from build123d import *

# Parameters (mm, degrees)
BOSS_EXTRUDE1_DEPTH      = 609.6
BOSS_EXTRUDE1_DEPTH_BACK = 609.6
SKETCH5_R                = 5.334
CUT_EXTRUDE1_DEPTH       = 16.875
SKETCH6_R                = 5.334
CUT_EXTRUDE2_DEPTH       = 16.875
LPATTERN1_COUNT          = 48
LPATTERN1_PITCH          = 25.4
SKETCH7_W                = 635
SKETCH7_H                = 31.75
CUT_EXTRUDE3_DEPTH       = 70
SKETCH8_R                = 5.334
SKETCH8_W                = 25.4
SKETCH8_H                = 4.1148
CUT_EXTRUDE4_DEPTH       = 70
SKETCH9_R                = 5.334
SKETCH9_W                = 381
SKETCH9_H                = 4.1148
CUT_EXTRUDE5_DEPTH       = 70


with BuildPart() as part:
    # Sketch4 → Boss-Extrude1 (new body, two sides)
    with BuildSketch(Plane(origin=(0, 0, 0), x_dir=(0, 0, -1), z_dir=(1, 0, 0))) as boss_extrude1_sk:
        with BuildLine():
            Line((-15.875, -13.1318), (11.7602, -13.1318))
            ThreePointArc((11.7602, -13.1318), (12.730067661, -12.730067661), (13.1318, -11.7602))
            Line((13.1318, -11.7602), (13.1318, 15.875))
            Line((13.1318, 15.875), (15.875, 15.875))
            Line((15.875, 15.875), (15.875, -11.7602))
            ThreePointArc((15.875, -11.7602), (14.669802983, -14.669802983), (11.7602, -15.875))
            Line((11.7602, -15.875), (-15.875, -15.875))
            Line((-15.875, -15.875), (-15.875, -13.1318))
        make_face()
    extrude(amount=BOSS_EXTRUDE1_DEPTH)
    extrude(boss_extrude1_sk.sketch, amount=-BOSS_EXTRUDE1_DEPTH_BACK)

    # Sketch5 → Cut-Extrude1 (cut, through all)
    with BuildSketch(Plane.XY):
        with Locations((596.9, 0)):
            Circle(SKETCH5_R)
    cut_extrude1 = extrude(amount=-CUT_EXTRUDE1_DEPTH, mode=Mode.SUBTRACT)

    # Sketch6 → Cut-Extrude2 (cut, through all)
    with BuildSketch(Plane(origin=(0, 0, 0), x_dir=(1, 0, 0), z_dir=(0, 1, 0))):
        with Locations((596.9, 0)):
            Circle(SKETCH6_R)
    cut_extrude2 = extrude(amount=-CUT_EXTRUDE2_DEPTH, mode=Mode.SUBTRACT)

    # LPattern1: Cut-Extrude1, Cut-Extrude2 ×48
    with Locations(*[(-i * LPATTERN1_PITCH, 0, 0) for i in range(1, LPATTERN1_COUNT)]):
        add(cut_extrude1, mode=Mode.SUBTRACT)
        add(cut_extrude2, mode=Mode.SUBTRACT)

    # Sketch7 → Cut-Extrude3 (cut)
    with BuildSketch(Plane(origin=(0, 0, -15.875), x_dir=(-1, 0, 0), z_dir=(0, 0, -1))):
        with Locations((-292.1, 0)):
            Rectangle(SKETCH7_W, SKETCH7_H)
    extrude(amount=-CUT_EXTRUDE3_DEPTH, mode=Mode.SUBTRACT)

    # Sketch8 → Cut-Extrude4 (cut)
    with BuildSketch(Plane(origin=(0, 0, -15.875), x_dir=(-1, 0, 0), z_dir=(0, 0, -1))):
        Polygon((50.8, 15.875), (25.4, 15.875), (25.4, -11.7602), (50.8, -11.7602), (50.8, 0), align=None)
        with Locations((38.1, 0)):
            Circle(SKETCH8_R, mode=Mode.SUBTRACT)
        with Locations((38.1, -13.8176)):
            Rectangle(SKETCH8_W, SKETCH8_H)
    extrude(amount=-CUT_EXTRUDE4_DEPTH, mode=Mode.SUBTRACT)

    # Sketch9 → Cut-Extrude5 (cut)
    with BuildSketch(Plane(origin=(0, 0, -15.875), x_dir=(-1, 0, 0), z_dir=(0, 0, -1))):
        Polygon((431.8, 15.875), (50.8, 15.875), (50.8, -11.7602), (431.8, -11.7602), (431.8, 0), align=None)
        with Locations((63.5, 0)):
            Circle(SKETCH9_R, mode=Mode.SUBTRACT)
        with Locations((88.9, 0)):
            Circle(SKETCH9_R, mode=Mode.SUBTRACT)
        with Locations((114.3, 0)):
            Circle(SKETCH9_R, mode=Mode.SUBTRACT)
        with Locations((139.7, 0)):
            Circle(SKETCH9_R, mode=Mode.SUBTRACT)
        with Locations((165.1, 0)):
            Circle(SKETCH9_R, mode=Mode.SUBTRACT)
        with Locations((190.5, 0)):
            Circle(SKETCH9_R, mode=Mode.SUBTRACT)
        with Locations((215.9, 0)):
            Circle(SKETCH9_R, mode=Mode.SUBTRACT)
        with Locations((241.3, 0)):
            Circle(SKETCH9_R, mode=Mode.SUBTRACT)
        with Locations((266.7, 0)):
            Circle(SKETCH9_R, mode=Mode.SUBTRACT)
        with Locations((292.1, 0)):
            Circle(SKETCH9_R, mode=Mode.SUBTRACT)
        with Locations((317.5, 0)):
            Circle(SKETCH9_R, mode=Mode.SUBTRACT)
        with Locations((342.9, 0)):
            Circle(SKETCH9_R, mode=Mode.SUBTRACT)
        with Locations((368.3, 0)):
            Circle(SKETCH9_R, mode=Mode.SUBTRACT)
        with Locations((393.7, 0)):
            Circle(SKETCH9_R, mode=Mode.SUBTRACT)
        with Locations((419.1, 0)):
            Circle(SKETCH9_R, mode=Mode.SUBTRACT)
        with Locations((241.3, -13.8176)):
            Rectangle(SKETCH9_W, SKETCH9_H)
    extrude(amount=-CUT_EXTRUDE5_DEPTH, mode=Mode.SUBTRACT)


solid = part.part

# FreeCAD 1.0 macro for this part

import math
import FreeCAD as App
import Part
import Sketcher
Q = App.Units.Quantity

doc = App.newDocument("Part")
body = doc.addObject("PartDesign::Body", "Body")

# Sketch on YZ plane
sketch1 = body.newObject("Sketcher::SketchObject", "Sketch")
sketch1.AttachmentSupport = (doc.getObject("YZ_Plane"), [""])
sketch1.MapMode = "FlatFace"
sketch1.addGeometry([
    Part.LineSegment(App.Vector(-13.1318, -11.7602, 0), App.Vector(-13.1318, 15.875, 0)),  # 0
    Part.LineSegment(App.Vector(-13.1318, 15.875, 0), App.Vector(-15.875, 15.875, 0)),  # 1
    Part.LineSegment(App.Vector(-15.875, 15.875, 0), App.Vector(-15.875, -11.7602, 0)),  # 2
    Part.ArcOfCircle(Part.Circle(App.Vector(-11.7602, -11.7602, 0), App.Vector(0, 0, 1), 4.1148), math.radians(-180), math.radians(-90)),  # 3
    Part.LineSegment(App.Vector(-11.7602, -15.875, 0), App.Vector(15.875, -15.875, 0)),  # 4
    Part.LineSegment(App.Vector(15.875, -15.875, 0), App.Vector(15.875, -13.1318, 0)),  # 5
    Part.LineSegment(App.Vector(15.875, -13.1318, 0), App.Vector(-11.7602, -13.1318, 0)),  # 6
    Part.ArcOfCircle(Part.Circle(App.Vector(-11.7602, -11.7602, 0), App.Vector(0, 0, 1), 1.3716), math.radians(180), math.radians(270)),  # 7
], False)
sketch1.addConstraint([
    Sketcher.Constraint("Coincident", 0, 2, 1, 1),
    Sketcher.Constraint("Coincident", 1, 2, 2, 1),
    Sketcher.Constraint("Tangent", 2, 2, 3, 1),
    Sketcher.Constraint("Tangent", 3, 2, 4, 1),
    Sketcher.Constraint("Coincident", 4, 2, 5, 1),
    Sketcher.Constraint("Coincident", 5, 2, 6, 1),
    Sketcher.Constraint("Tangent", 6, 2, 7, 2),
    Sketcher.Constraint("Tangent", 7, 1, 0, 1),
    Sketcher.Constraint("Vertical", 0),
    Sketcher.Constraint("Horizontal", 1),
    Sketcher.Constraint("Vertical", 2),
    Sketcher.Constraint("Horizontal", 4),
    Sketcher.Constraint("Vertical", 5),
    Sketcher.Constraint("Horizontal", 6),
    Sketcher.Constraint("Coincident", 7, 3, 3, 3),
    Sketcher.Constraint("Symmetric", 1, 2, 4, 2, -1, 1),
    Sketcher.Constraint("Equal", 6, 0),
    Sketcher.Constraint("Radius", 3, Q("0.162 in")),
    Sketcher.Constraint("Radius", 7, Q("0.054 in")),
    Sketcher.Constraint("DistanceX", 4, 1, 4, 2, Q("1.088 in")),
])
pad1 = body.newObject("PartDesign::Pad", "Pad")
pad1.Profile = sketch1
pad1.Type = "TwoLengths"
pad1.Length = Q("24 in")
pad1.Length2 = Q("24 in")

# Sketch on XY plane
sketch2 = body.newObject("Sketcher::SketchObject", "Sketch001")
sketch2.AttachmentSupport = (doc.getObject("XY_Plane"), [""])
sketch2.MapMode = "FlatFace"
sketch2.addGeometry(Part.Circle(App.Vector(596.9, 0, 0), App.Vector(0, 0, 1), 5.334), False)
sketch2.addConstraint([
    Sketcher.Constraint("PointOnObject", 0, 3, -1),
    Sketcher.Constraint("Diameter", 0, Q("0.42 in")),
    Sketcher.Constraint("DistanceX", -1, 1, 0, 3, Q("23.5 in")),
])
pocket1 = body.newObject("PartDesign::Pocket", "Pocket")
pocket1.Profile = sketch2
pocket1.Type = "ThroughAll"

# Sketch on XZ plane
sketch3 = body.newObject("Sketcher::SketchObject", "Sketch002")
sketch3.AttachmentSupport = (doc.getObject("XZ_Plane"), [""])
sketch3.MapMode = "FlatFace"
sketch3.addGeometry(Part.Circle(App.Vector(596.9, 0, 0), App.Vector(0, 0, 1), 5.334), False)
sketch3.addConstraint([
    Sketcher.Constraint("PointOnObject", 0, 3, -1),
    Sketcher.Constraint("Diameter", 0, Q("0.42 in")),
    Sketcher.Constraint("DistanceX", -1, 1, 0, 3, Q("23.5 in")),
])
pocket2 = body.newObject("PartDesign::Pocket", "Pocket001")
pocket2.Profile = sketch3
pocket2.Type = "ThroughAll"
pocket2.Reversed = True
doc.recompute()

linearpattern = body.newObject("PartDesign::LinearPattern", "LinearPattern")
linearpattern.Originals = [pocket1, pocket2]
linearpattern.Direction = (doc.getObject("X_Axis"), [""])
linearpattern.Mode = "offset"
linearpattern.Offset = Q("1 in")
linearpattern.Occurrences = 48
linearpattern.Reversed = True
body.Tip = linearpattern

# Sketch on XY plane
sketch4 = body.newObject("Sketcher::SketchObject", "Sketch003")
sketch4.AttachmentSupport = (doc.getObject("XY_Plane"), [""])
sketch4.MapMode = "FlatFace"
sketch4.AttachmentOffset = App.Placement(App.Vector(0, 0, -0.625 * 25.4), App.Rotation())
sketch4.addGeometry([
    Part.LineSegment(App.Vector(609.6, 15.875, 0), App.Vector(609.6, -15.875, 0)),
    Part.LineSegment(App.Vector(609.6, -15.875, 0), App.Vector(-25.4, -15.875, 0)),
    Part.LineSegment(App.Vector(-25.4, -15.875, 0), App.Vector(-25.4, 15.875, 0)),
    Part.LineSegment(App.Vector(-25.4, 15.875, 0), App.Vector(609.6, 15.875, 0)),
], False)
sketch4.addConstraint([
    Sketcher.Constraint("Coincident", 0, 2, 1, 1),
    Sketcher.Constraint("Coincident", 1, 2, 2, 1),
    Sketcher.Constraint("Coincident", 2, 2, 3, 1),
    Sketcher.Constraint("Coincident", 3, 2, 0, 1),
    Sketcher.Constraint("Vertical", 0),
    Sketcher.Constraint("Horizontal", 1),
    Sketcher.Constraint("Vertical", 2),
    Sketcher.Constraint("Horizontal", 3),
    Sketcher.Constraint("DistanceX", 1, 2, 1, 1, Q("25 in")),
    Sketcher.Constraint("DistanceX", -1, 1, 0, 2, Q("24 in")),
    Sketcher.Constraint("DistanceY", 0, 2, 0, 1, Q("1.25 in")),
    Sketcher.Constraint("DistanceY", 0, 2, -1, 1, Q("0.625 in")),
])
pocket3 = body.newObject("PartDesign::Pocket", "Pocket002")
pocket3.Profile = sketch4
pocket3.Length = 70
pocket3.Reversed = True

# Sketch on XY plane
sketch5 = body.newObject("Sketcher::SketchObject", "Sketch004")
sketch5.AttachmentSupport = (doc.getObject("XY_Plane"), [""])
sketch5.MapMode = "FlatFace"
sketch5.AttachmentOffset = App.Placement(App.Vector(0, 0, -0.625 * 25.4), App.Rotation())
sketch5.addGeometry([
    Part.LineSegment(App.Vector(-50.8, 15.875, 0), App.Vector(-25.4, 15.875, 0)),  # 0
    Part.LineSegment(App.Vector(-25.4, 15.875, 0), App.Vector(-25.4, -15.875, 0)),  # 1
    Part.LineSegment(App.Vector(-25.4, -15.875, 0), App.Vector(-50.8, -15.875, 0)),  # 2
    Part.LineSegment(App.Vector(-50.8, -15.875, 0), App.Vector(-50.8, 15.875, 0)),  # 3
    Part.Circle(App.Vector(-38.1, 0, 0), App.Vector(0, 0, 1), 5.334),  # 4
], False)
sketch5.addConstraint([
    Sketcher.Constraint("Coincident", 0, 2, 1, 1),
    Sketcher.Constraint("Coincident", 1, 2, 2, 1),
    Sketcher.Constraint("Coincident", 2, 2, 3, 1),
    Sketcher.Constraint("Coincident", 3, 2, 0, 1),
    Sketcher.Constraint("Horizontal", 0),
    Sketcher.Constraint("Vertical", 1),
    Sketcher.Constraint("Horizontal", 2),
    Sketcher.Constraint("Vertical", 3),
    Sketcher.Constraint("PointOnObject", 4, 3, -1),
    Sketcher.Constraint("Diameter", 4, Q("0.42 in")),
    Sketcher.Constraint("DistanceX", 0, 1, 0, 2, Q("1 in")),
    Sketcher.Constraint("DistanceX", 0, 2, -1, 1, Q("1 in")),
    Sketcher.Constraint("DistanceY", 1, 2, 1, 1, Q("1.25 in")),
    Sketcher.Constraint("DistanceX", 4, 3, -1, 1, Q("1.5 in")),
    Sketcher.Constraint("DistanceY", -1, 1, 0, 2, Q("0.625 in")),
])
pocket4 = body.newObject("PartDesign::Pocket", "Pocket003")
pocket4.Profile = sketch5
pocket4.Length = 70
pocket4.Reversed = True

# Sketch on XY plane
sketch6 = body.newObject("Sketcher::SketchObject", "Sketch005")
sketch6.AttachmentSupport = (doc.getObject("XY_Plane"), [""])
sketch6.MapMode = "FlatFace"
sketch6.AttachmentOffset = App.Placement(App.Vector(0, 0, -0.625 * 25.4), App.Rotation())
sketch6.addGeometry([
    Part.LineSegment(App.Vector(-431.8, 15.875, 0), App.Vector(-50.8, 15.875, 0)),  # 0
    Part.LineSegment(App.Vector(-50.8, 15.875, 0), App.Vector(-50.8, -15.875, 0)),  # 1
    Part.LineSegment(App.Vector(-50.8, -15.875, 0), App.Vector(-431.8, -15.875, 0)),  # 2
    Part.LineSegment(App.Vector(-431.8, -15.875, 0), App.Vector(-431.8, 15.875, 0)),  # 3
    Part.Circle(App.Vector(-63.5, 0, 0), App.Vector(0, 0, 1), 5.334),  # 4
    Part.Circle(App.Vector(-88.9, 0, 0), App.Vector(0, 0, 1), 5.334),  # 5
    Part.Circle(App.Vector(-114.3, 0, 0), App.Vector(0, 0, 1), 5.334),  # 6
    Part.Circle(App.Vector(-139.7, 0, 0), App.Vector(0, 0, 1), 5.334),  # 7
    Part.Circle(App.Vector(-165.1, 0, 0), App.Vector(0, 0, 1), 5.334),  # 8
    Part.Circle(App.Vector(-190.5, 0, 0), App.Vector(0, 0, 1), 5.334),  # 9
    Part.Circle(App.Vector(-215.9, 0, 0), App.Vector(0, 0, 1), 5.334),  # 10
    Part.Circle(App.Vector(-241.3, 0, 0), App.Vector(0, 0, 1), 5.334),  # 11
    Part.Circle(App.Vector(-266.7, 0, 0), App.Vector(0, 0, 1), 5.334),  # 12
    Part.Circle(App.Vector(-292.1, 0, 0), App.Vector(0, 0, 1), 5.334),  # 13
    Part.Circle(App.Vector(-317.5, 0, 0), App.Vector(0, 0, 1), 5.334),  # 14
    Part.Circle(App.Vector(-342.9, 0, 0), App.Vector(0, 0, 1), 5.334),  # 15
    Part.Circle(App.Vector(-368.3, 0, 0), App.Vector(0, 0, 1), 5.334),  # 16
    Part.Circle(App.Vector(-393.7, 0, 0), App.Vector(0, 0, 1), 5.334),  # 17
    Part.Circle(App.Vector(-419.1, 0, 0), App.Vector(0, 0, 1), 5.334),  # 18
], False)
sketch6.addConstraint([
    Sketcher.Constraint("Coincident", 0, 2, 1, 1),
    Sketcher.Constraint("Coincident", 1, 2, 2, 1),
    Sketcher.Constraint("Coincident", 2, 2, 3, 1),
    Sketcher.Constraint("Coincident", 3, 2, 0, 1),
    Sketcher.Constraint("Horizontal", 0),
    Sketcher.Constraint("Vertical", 1),
    Sketcher.Constraint("Horizontal", 2),
    Sketcher.Constraint("Vertical", 3),
    Sketcher.Constraint("Equal", 4, 5),
    Sketcher.Constraint("Equal", 5, 6),
    Sketcher.Constraint("Equal", 6, 7),
    Sketcher.Constraint("Equal", 7, 8),
    Sketcher.Constraint("Equal", 8, 9),
    Sketcher.Constraint("Equal", 9, 10),
    Sketcher.Constraint("Equal", 10, 11),
    Sketcher.Constraint("Equal", 11, 12),
    Sketcher.Constraint("Equal", 12, 13),
    Sketcher.Constraint("Equal", 13, 14),
    Sketcher.Constraint("Equal", 14, 15),
    Sketcher.Constraint("Equal", 15, 16),
    Sketcher.Constraint("Equal", 16, 17),
    Sketcher.Constraint("Equal", 17, 18),
    Sketcher.Constraint("PointOnObject", 4, 3, -1),
    Sketcher.Constraint("PointOnObject", 5, 3, -1),
    Sketcher.Constraint("PointOnObject", 6, 3, -1),
    Sketcher.Constraint("PointOnObject", 7, 3, -1),
    Sketcher.Constraint("PointOnObject", 8, 3, -1),
    Sketcher.Constraint("PointOnObject", 9, 3, -1),
    Sketcher.Constraint("PointOnObject", 10, 3, -1),
    Sketcher.Constraint("PointOnObject", 11, 3, -1),
    Sketcher.Constraint("PointOnObject", 12, 3, -1),
    Sketcher.Constraint("PointOnObject", 13, 3, -1),
    Sketcher.Constraint("PointOnObject", 14, 3, -1),
    Sketcher.Constraint("PointOnObject", 15, 3, -1),
    Sketcher.Constraint("PointOnObject", 16, 3, -1),
    Sketcher.Constraint("PointOnObject", 17, 3, -1),
    Sketcher.Constraint("PointOnObject", 18, 3, -1),
    Sketcher.Constraint("Diameter", 4, Q("0.42 in")),
    Sketcher.Constraint("DistanceX", 0, 1, 0, 2, Q("15 in")),
    Sketcher.Constraint("DistanceX", 0, 2, -1, 1, Q("2 in")),
    Sketcher.Constraint("DistanceX", 5, 3, 4, 3, Q("1 in")),
    Sketcher.Constraint("DistanceX", 6, 3, 5, 3, Q("1 in")),
    Sketcher.Constraint("DistanceX", 7, 3, 6, 3, Q("1 in")),
    Sketcher.Constraint("DistanceX", 8, 3, 7, 3, Q("1 in")),
    Sketcher.Constraint("DistanceX", 9, 3, 8, 3, Q("1 in")),
    Sketcher.Constraint("DistanceX", 10, 3, 9, 3, Q("1 in")),
    Sketcher.Constraint("DistanceX", 11, 3, 10, 3, Q("1 in")),
    Sketcher.Constraint("DistanceX", 12, 3, 11, 3, Q("1 in")),
    Sketcher.Constraint("DistanceX", 13, 3, 12, 3, Q("1 in")),
    Sketcher.Constraint("DistanceX", 14, 3, 13, 3, Q("1 in")),
    Sketcher.Constraint("DistanceX", 15, 3, 14, 3, Q("1 in")),
    Sketcher.Constraint("DistanceX", 16, 3, 15, 3, Q("1 in")),
    Sketcher.Constraint("DistanceX", 17, 3, 16, 3, Q("1 in")),
    Sketcher.Constraint("DistanceX", 18, 3, 17, 3, Q("1 in")),
    Sketcher.Constraint("DistanceY", 1, 2, 1, 1, Q("1.25 in")),
    Sketcher.Constraint("DistanceX", 4, 3, -1, 1, Q("2.5 in")),
    Sketcher.Constraint("DistanceY", -1, 1, 0, 2, Q("0.625 in")),
])
pocket5 = body.newObject("PartDesign::Pocket", "Pocket004")
pocket5.Profile = sketch6
pocket5.Length = 70
pocket5.Reversed = True

doc.recompute()
